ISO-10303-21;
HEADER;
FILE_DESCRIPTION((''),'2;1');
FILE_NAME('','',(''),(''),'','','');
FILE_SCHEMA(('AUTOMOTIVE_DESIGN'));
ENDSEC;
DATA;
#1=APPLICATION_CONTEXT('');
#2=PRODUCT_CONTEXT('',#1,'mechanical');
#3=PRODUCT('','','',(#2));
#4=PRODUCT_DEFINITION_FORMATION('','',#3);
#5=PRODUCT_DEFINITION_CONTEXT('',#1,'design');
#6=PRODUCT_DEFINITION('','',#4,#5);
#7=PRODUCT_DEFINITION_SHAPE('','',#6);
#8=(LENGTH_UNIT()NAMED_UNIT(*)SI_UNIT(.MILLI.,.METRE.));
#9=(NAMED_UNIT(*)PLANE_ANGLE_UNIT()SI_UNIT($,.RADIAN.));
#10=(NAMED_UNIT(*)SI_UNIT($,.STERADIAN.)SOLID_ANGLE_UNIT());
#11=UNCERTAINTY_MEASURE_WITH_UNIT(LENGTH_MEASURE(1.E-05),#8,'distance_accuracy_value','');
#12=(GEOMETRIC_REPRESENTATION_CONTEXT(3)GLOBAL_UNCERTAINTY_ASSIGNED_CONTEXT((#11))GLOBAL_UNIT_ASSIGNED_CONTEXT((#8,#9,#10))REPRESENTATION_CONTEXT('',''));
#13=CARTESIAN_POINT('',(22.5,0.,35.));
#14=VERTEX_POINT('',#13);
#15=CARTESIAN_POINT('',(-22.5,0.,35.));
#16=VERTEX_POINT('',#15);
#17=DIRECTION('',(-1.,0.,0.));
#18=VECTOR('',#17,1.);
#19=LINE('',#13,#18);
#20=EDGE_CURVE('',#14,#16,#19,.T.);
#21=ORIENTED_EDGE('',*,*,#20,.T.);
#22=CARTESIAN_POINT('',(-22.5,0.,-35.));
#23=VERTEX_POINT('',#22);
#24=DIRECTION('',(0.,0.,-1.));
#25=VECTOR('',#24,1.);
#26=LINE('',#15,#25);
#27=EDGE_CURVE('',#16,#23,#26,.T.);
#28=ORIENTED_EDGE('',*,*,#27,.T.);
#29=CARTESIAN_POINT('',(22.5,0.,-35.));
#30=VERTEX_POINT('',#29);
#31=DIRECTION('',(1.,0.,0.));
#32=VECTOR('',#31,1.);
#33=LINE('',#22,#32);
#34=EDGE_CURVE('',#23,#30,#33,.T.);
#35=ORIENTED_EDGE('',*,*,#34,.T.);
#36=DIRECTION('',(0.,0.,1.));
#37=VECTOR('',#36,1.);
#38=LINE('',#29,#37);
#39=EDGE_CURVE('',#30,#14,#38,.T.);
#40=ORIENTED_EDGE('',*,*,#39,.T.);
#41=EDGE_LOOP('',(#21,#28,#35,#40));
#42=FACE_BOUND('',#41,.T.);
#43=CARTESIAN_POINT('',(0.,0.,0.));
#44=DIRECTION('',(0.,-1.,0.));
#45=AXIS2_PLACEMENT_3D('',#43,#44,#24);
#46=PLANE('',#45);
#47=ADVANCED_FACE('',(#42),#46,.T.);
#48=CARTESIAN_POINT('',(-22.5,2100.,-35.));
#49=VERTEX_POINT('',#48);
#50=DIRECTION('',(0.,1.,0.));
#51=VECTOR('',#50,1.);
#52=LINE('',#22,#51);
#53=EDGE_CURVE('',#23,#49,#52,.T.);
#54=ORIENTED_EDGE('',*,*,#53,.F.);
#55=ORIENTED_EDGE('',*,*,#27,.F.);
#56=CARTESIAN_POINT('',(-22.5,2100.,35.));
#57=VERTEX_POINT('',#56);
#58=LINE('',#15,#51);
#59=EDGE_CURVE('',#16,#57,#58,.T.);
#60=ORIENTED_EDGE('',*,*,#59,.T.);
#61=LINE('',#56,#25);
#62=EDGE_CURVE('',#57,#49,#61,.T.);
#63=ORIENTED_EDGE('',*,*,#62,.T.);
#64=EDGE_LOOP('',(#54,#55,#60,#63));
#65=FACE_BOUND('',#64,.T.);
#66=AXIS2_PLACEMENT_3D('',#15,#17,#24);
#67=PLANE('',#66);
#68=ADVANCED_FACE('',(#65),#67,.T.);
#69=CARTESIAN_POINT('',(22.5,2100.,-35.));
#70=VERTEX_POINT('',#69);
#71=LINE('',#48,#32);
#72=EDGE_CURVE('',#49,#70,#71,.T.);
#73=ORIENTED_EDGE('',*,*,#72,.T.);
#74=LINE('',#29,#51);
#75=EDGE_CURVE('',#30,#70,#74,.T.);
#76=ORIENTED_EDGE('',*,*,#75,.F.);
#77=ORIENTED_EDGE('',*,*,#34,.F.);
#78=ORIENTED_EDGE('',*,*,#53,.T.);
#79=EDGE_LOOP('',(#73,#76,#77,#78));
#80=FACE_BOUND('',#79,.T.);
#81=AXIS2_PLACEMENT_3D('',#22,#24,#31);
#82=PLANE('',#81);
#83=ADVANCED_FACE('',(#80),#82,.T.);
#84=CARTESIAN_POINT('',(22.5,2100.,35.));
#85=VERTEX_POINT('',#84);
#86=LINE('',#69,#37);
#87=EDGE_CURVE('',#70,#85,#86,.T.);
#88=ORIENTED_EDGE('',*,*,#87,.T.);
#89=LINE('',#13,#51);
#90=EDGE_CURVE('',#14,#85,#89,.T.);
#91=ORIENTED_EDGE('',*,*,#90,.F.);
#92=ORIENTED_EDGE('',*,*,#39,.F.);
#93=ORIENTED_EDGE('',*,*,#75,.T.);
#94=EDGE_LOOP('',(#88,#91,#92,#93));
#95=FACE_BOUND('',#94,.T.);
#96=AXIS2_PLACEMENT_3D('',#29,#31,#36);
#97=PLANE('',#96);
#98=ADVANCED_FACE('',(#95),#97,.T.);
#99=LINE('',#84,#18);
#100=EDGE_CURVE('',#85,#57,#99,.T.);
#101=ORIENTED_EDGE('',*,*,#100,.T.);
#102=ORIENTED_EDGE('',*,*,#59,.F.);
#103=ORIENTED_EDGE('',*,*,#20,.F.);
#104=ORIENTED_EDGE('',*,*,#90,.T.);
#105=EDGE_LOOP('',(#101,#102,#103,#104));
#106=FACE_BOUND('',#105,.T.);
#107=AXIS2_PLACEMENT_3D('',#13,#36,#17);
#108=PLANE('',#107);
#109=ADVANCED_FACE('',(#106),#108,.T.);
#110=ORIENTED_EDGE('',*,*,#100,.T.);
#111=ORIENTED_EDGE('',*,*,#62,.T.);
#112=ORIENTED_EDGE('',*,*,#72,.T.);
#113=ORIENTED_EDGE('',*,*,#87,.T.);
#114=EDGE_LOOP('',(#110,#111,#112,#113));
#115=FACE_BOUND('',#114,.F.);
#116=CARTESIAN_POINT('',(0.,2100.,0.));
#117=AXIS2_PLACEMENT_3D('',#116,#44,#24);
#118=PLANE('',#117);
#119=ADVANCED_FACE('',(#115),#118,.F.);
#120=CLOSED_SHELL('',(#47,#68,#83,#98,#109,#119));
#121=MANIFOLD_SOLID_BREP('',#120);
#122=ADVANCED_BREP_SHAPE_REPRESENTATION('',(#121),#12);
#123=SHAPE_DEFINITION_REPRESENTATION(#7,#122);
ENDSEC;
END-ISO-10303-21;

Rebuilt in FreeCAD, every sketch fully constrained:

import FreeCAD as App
import Part
import Sketcher
Q = App.Units.Quantity

doc = App.newDocument("Part")
body = doc.addObject("PartDesign::Body", "Body")

# Sketch on XZ plane
sketch1 = doc.addObject("Sketcher::SketchObject", "Sketch")
body.addObject(sketch1)
sketch1.AttachmentSupport = (doc.XZ_Plane, [""])
sketch1.MapMode = "FlatFace"
sketch1.addGeometry([
    Part.LineSegment(App.Vector(-22.5, 35, 0), App.Vector(-22.5, -35, 0)),
    Part.LineSegment(App.Vector(-22.5, -35, 0), App.Vector(22.5, -35, 0)),
    Part.LineSegment(App.Vector(22.5, -35, 0), App.Vector(22.5, 35, 0)),
    Part.LineSegment(App.Vector(22.5, 35, 0), App.Vector(-22.5, 35, 0)),
], False)
sketch1.addConstraint([
    Sketcher.Constraint("Coincident", 0, 2, 1, 1),
    Sketcher.Constraint("Coincident", 1, 2, 2, 1),
    Sketcher.Constraint("Coincident", 2, 2, 3, 1),
    Sketcher.Constraint("Coincident", 3, 2, 0, 1),
    Sketcher.Constraint("Vertical", 0),
    Sketcher.Constraint("Horizontal", 1),
    Sketcher.Constraint("Vertical", 2),
    Sketcher.Constraint("Horizontal", 3),
    Sketcher.Constraint("Symmetric", 0, 2, 2, 2, -1, 1),
    Sketcher.Constraint("DistanceX", 1, 1, 1, 2, Q("45 mm")),
    Sketcher.Constraint("DistanceY", 0, 2, 0, 1, Q("70 mm")),
])
pad1 = doc.addObject("PartDesign::Pad", "Pad")
body.addObject(pad1)
pad1.Profile = sketch1
pad1.Length = 2100
pad1.Reversed = True

doc.recompute()
